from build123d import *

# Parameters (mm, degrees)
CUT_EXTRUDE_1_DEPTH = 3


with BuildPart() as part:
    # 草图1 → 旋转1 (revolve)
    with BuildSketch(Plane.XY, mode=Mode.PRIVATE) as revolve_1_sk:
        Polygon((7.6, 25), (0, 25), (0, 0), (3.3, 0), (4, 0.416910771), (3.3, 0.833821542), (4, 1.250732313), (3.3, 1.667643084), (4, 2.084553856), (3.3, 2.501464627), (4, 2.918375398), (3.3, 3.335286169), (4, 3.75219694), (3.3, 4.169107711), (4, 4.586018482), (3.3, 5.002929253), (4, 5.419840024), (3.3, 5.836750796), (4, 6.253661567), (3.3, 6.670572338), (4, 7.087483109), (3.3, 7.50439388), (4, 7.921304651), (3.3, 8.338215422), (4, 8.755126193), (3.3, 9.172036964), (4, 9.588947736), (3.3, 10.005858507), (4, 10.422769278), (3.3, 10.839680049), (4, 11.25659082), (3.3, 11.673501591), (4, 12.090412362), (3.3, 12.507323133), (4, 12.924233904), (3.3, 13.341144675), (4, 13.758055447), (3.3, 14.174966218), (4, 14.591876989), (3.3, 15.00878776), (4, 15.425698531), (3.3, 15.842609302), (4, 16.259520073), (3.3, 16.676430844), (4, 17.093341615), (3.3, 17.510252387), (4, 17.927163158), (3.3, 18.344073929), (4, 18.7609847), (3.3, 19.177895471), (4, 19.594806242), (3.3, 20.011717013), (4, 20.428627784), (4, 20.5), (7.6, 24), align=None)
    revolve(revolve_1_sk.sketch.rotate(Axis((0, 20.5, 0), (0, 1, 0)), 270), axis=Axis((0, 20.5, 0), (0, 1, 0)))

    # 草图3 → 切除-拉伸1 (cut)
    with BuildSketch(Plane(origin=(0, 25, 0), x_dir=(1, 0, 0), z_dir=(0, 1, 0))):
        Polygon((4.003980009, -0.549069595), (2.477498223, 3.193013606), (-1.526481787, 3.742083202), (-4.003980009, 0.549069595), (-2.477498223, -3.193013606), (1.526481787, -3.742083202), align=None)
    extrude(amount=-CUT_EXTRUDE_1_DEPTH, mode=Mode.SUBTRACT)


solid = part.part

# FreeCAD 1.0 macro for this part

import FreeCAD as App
import Part
import Sketcher
from FreeCAD import Vector
Q = App.Units.Quantity

doc = App.newDocument("Part")
params = doc.addObject("Spreadsheet::Sheet", "Params")
for row, (alias, value) in enumerate([
    ("sketch1_height", "25 mm"),
    ("sketch1_height2", "1 mm"),
    ("sketch1_width", "7.6 mm"),
    ("sketch1_width2", "3.3 mm"),
    ("revolution_angle", "360 deg"),
    ("pocket1_length", "3 mm"),
], start=1):
    params.set(f"A{row}", alias)
    params.set(f"B{row}", "=" + value)
    params.setAlias(f"B{row}", alias)

body = doc.addObject("PartDesign::Body", "Body")

sketch1 = doc.addObject("Sketcher::SketchObject", "Sketch")
body.addObject(sketch1)
sketch1.AttachmentSupport = (doc.XY_Plane, [""])
sketch1.MapMode = "FlatFace"
sketch1.addGeometry([
    Part.LineSegment(Vector(7.6, 25, 0), Vector(0, 25, 0)),
    Part.LineSegment(Vector(0, 25, 0), Vector(0, 0, 0)),
    Part.LineSegment(Vector(0, 0, 0), Vector(3.3, 0, 0)),
    Part.LineSegment(Vector(3.3, 0, 0), Vector(4, 0.42, 0)),
    Part.LineSegment(Vector(4, 0.42, 0), Vector(3.3, 0.83, 0)),
    Part.LineSegment(Vector(3.3, 0.83, 0), Vector(4, 1.25, 0)),
    Part.LineSegment(Vector(4, 1.25, 0), Vector(3.3, 1.67, 0)),
    Part.LineSegment(Vector(3.3, 1.67, 0), Vector(4, 2.08, 0)),
    Part.LineSegment(Vector(4, 2.08, 0), Vector(3.3, 2.5, 0)),
    Part.LineSegment(Vector(3.3, 2.5, 0), Vector(4, 2.92, 0)),
    Part.LineSegment(Vector(4, 2.92, 0), Vector(3.3, 3.34, 0)),
    Part.LineSegment(Vector(3.3, 3.34, 0), Vector(4, 3.75, 0)),
    Part.LineSegment(Vector(4, 3.75, 0), Vector(3.3, 4.17, 0)),
    Part.LineSegment(Vector(3.3, 4.17, 0), Vector(4, 4.59, 0)),
    Part.LineSegment(Vector(4, 4.59, 0), Vector(3.3, 5, 0)),
    Part.LineSegment(Vector(3.3, 5, 0), Vector(4, 5.42, 0)),
    Part.LineSegment(Vector(4, 5.42, 0), Vector(3.3, 5.84, 0)),
    Part.LineSegment(Vector(3.3, 5.84, 0), Vector(4, 6.25, 0)),
    Part.LineSegment(Vector(4, 6.25, 0), Vector(3.3, 6.67, 0)),
    Part.LineSegment(Vector(3.3, 6.67, 0), Vector(4, 7.09, 0)),
    Part.LineSegment(Vector(4, 7.09, 0), Vector(3.3, 7.5, 0)),
    Part.LineSegment(Vector(3.3, 7.5, 0), Vector(4, 7.92, 0)),
    Part.LineSegment(Vector(4, 7.92, 0), Vector(3.3, 8.34, 0)),
    Part.LineSegment(Vector(3.3, 8.34, 0), Vector(4, 8.76, 0)),
    Part.LineSegment(Vector(4, 8.76, 0), Vector(3.3, 9.17, 0)),
    Part.LineSegment(Vector(3.3, 9.17, 0), Vector(4, 9.59, 0)),
    Part.LineSegment(Vector(4, 9.59, 0), Vector(3.3, 10.01, 0)),
    Part.LineSegment(Vector(3.3, 10.01, 0), Vector(4, 10.42, 0)),
    Part.LineSegment(Vector(4, 10.42, 0), Vector(3.3, 10.84, 0)),
    Part.LineSegment(Vector(3.3, 10.84, 0), Vector(4, 11.26, 0)),
    Part.LineSegment(Vector(4, 11.26, 0), Vector(3.3, 11.67, 0)),
    Part.LineSegment(Vector(3.3, 11.67, 0), Vector(4, 12.09, 0)),
    Part.LineSegment(Vector(4, 12.09, 0), Vector(3.3, 12.51, 0)),
    Part.LineSegment(Vector(3.3, 12.51, 0), Vector(4, 12.92, 0)),
    Part.LineSegment(Vector(4, 12.92, 0), Vector(3.3, 13.34, 0)),
    Part.LineSegment(Vector(3.3, 13.34, 0), Vector(4, 13.76, 0)),
    Part.LineSegment(Vector(4, 13.76, 0), Vector(3.3, 14.17, 0)),
    Part.LineSegment(Vector(3.3, 14.17, 0), Vector(4, 14.59, 0)),
    Part.LineSegment(Vector(4, 14.59, 0), Vector(3.3, 15.01, 0)),
    Part.LineSegment(Vector(3.3, 15.01, 0), Vector(4, 15.43, 0)),
    Part.LineSegment(Vector(4, 15.43, 0), Vector(3.3, 15.84, 0)),
    Part.LineSegment(Vector(3.3, 15.84, 0), Vector(4, 16.26, 0)),
    Part.LineSegment(Vector(4, 16.26, 0), Vector(3.3, 16.68, 0)),
    Part.LineSegment(Vector(3.3, 16.68, 0), Vector(4, 17.09, 0)),
    Part.LineSegment(Vector(4, 17.09, 0), Vector(3.3, 17.51, 0)),
    Part.LineSegment(Vector(3.3, 17.51, 0), Vector(4, 17.93, 0)),
    Part.LineSegment(Vector(4, 17.93, 0), Vector(3.3, 18.34, 0)),
    Part.LineSegment(Vector(3.3, 18.34, 0), Vector(4, 18.76, 0)),
    Part.LineSegment(Vector(4, 18.76, 0), Vector(3.3, 19.18, 0)),
    Part.LineSegment(Vector(3.3, 19.18, 0), Vector(4, 19.59, 0)),
    Part.LineSegment(Vector(4, 19.59, 0), Vector(3.3, 20.01, 0)),
    Part.LineSegment(Vector(3.3, 20.01, 0), Vector(4, 20.43, 0)),
    Part.LineSegment(Vector(4, 20.43, 0), Vector(4, 20.5, 0)),
    Part.LineSegment(Vector(4, 20.5, 0), Vector(7.6, 24, 0)),
    Part.LineSegment(Vector(7.6, 24, 0), Vector(7.6, 25, 0)),
], False)
sketch1.addConstraint([
    Sketcher.Constraint("Coincident", 0, 2, 1, 1),
    Sketcher.Constraint("Coincident", 1, 2, 2, 1),
    Sketcher.Constraint("Coincident", 2, 2, 3, 1),
    Sketcher.Constraint("Coincident", 3, 2, 4, 1),
    Sketcher.Constraint("Coincident", 4, 2, 5, 1),
    Sketcher.Constraint("Coincident", 5, 2, 6, 1),
    Sketcher.Constraint("Coincident", 6, 2, 7, 1),
    Sketcher.Constraint("Coincident", 7, 2, 8, 1),
    Sketcher.Constraint("Coincident", 8, 2, 9, 1),
    Sketcher.Constraint("Coincident", 9, 2, 10, 1),
    Sketcher.Constraint("Coincident", 10, 2, 11, 1),
    Sketcher.Constraint("Coincident", 11, 2, 12, 1),
    Sketcher.Constraint("Coincident", 12, 2, 13, 1),
    Sketcher.Constraint("Coincident", 13, 2, 14, 1),
    Sketcher.Constraint("Coincident", 14, 2, 15, 1),
    Sketcher.Constraint("Coincident", 15, 2, 16, 1),
    Sketcher.Constraint("Coincident", 16, 2, 17, 1),
    Sketcher.Constraint("Coincident", 17, 2, 18, 1),
    Sketcher.Constraint("Coincident", 18, 2, 19, 1),
    Sketcher.Constraint("Coincident", 19, 2, 20, 1),
    Sketcher.Constraint("Coincident", 20, 2, 21, 1),
    Sketcher.Constraint("Coincident", 21, 2, 22, 1),
    Sketcher.Constraint("Coincident", 22, 2, 23, 1),
    Sketcher.Constraint("Coincident", 23, 2, 24, 1),
    Sketcher.Constraint("Coincident", 24, 2, 25, 1),
    Sketcher.Constraint("Coincident", 25, 2, 26, 1),
    Sketcher.Constraint("Coincident", 26, 2, 27, 1),
    Sketcher.Constraint("Coincident", 27, 2, 28, 1),
    Sketcher.Constraint("Coincident", 28, 2, 29, 1),
    Sketcher.Constraint("Coincident", 29, 2, 30, 1),
    Sketcher.Constraint("Coincident", 30, 2, 31, 1),
    Sketcher.Constraint("Coincident", 31, 2, 32, 1),
    Sketcher.Constraint("Coincident", 32, 2, 33, 1),
    Sketcher.Constraint("Coincident", 33, 2, 34, 1),
    Sketcher.Constraint("Coincident", 34, 2, 35, 1),
    Sketcher.Constraint("Coincident", 35, 2, 36, 1),
    Sketcher.Constraint("Coincident", 36, 2, 37, 1),
    Sketcher.Constraint("Coincident", 37, 2, 38, 1),
    Sketcher.Constraint("Coincident", 38, 2, 39, 1),
    Sketcher.Constraint("Coincident", 39, 2, 40, 1),
    Sketcher.Constraint("Coincident", 40, 2, 41, 1),
    Sketcher.Constraint("Coincident", 41, 2, 42, 1),
    Sketcher.Constraint("Coincident", 42, 2, 43, 1),
    Sketcher.Constraint("Coincident", 43, 2, 44, 1),
    Sketcher.Constraint("Coincident", 44, 2, 45, 1),
    Sketcher.Constraint("Coincident", 45, 2, 46, 1),
    Sketcher.Constraint("Coincident", 46, 2, 47, 1),
    Sketcher.Constraint("Coincident", 47, 2, 48, 1),
    Sketcher.Constraint("Coincident", 48, 2, 49, 1),
    Sketcher.Constraint("Coincident", 49, 2, 50, 1),
    Sketcher.Constraint("Coincident", 50, 2, 51, 1),
    Sketcher.Constraint("Coincident", 51, 2, 52, 1),
    Sketcher.Constraint("Coincident", 52, 2, 53, 1),
    Sketcher.Constraint("Coincident", 53, 2, 54, 1),
    Sketcher.Constraint("Coincident", 54, 2, 0, 1),
    Sketcher.Constraint("Horizontal", 0),
    Sketcher.Constraint("Vertical", 1),
    Sketcher.Constraint("Horizontal", 2),
    Sketcher.Constraint("Vertical", 52),
    Sketcher.Constraint("Vertical", 54),
    Sketcher.Constraint("Coincident", 1, 2, -1, 1),
    Sketcher.Constraint("Parallel", 3, 5),
    Sketcher.Constraint("Parallel", 4, 6),
    Sketcher.Constraint("Parallel", 5, 7),
    Sketcher.Constraint("Parallel", 6, 8),
    Sketcher.Constraint("Parallel", 7, 9),
    Sketcher.Constraint("Parallel", 8, 10),
    Sketcher.Constraint("Parallel", 9, 11),
    Sketcher.Constraint("Parallel", 10, 12),
    Sketcher.Constraint("Parallel", 11, 13),
    Sketcher.Constraint("Parallel", 12, 14),
    Sketcher.Constraint("Parallel", 13, 15),
    Sketcher.Constraint("Parallel", 14, 16),
    Sketcher.Constraint("Parallel", 15, 17),
    Sketcher.Constraint("Parallel", 16, 18),
    Sketcher.Constraint("Parallel", 17, 19),
    Sketcher.Constraint("Parallel", 18, 20),
    Sketcher.Constraint("Parallel", 19, 21),
    Sketcher.Constraint("Parallel", 20, 22),
    Sketcher.Constraint("Parallel", 21, 23),
    Sketcher.Constraint("Parallel", 22, 24),
    Sketcher.Constraint("Parallel", 23, 25),
    Sketcher.Constraint("Parallel", 24, 26),
    Sketcher.Constraint("Parallel", 25, 27),
    Sketcher.Constraint("Parallel", 26, 28),
    Sketcher.Constraint("Parallel", 27, 29),
    Sketcher.Constraint("Parallel", 28, 30),
    Sketcher.Constraint("Parallel", 29, 31),
    Sketcher.Constraint("Parallel", 30, 32),
    Sketcher.Constraint("Parallel", 31, 33),
    Sketcher.Constraint("Parallel", 32, 34),
    Sketcher.Constraint("Parallel", 33, 35),
    Sketcher.Constraint("Parallel", 34, 36),
    Sketcher.Constraint("Parallel", 35, 37),
    Sketcher.Constraint("Parallel", 36, 38),
    Sketcher.Constraint("Parallel", 37, 39),
    Sketcher.Constraint("Parallel", 38, 40),
    Sketcher.Constraint("Parallel", 39, 41),
    Sketcher.Constraint("Parallel", 40, 42),
    Sketcher.Constraint("Parallel", 41, 43),
    Sketcher.Constraint("Parallel", 42, 44),
    Sketcher.Constraint("Parallel", 43, 45),
    Sketcher.Constraint("Parallel", 44, 46),
    Sketcher.Constraint("Parallel", 45, 47),
    Sketcher.Constraint("Parallel", 46, 48),
    Sketcher.Constraint("Parallel", 47, 49),
    Sketcher.Constraint("Parallel", 48, 50),
    Sketcher.Constraint("Parallel", 49, 51),
    Sketcher.Constraint("Vertical", 2, 2, 4, 2),
    Sketcher.Constraint("Vertical", 3, 2, 5, 2),
    Sketcher.Constraint("Vertical", 4, 2, 6, 2),
    Sketcher.Constraint("Vertical", 5, 2, 7, 2),
    Sketcher.Constraint("Vertical", 6, 2, 8, 2),
    Sketcher.Constraint("Vertical", 7, 2, 9, 2),
    Sketcher.Constraint("Vertical", 8, 2, 10, 2),
    Sketcher.Constraint("Vertical", 9, 2, 11, 2),
    Sketcher.Constraint("Vertical", 10, 2, 12, 2),
    Sketcher.Constraint("Vertical", 11, 2, 13, 2),
    Sketcher.Constraint("Vertical", 12, 2, 14, 2),
    Sketcher.Constraint("Vertical", 13, 2, 15, 2),
    Sketcher.Constraint("Vertical", 14, 2, 16, 2),
    Sketcher.Constraint("Vertical", 15, 2, 17, 2),
    Sketcher.Constraint("Vertical", 16, 2, 18, 2),
    Sketcher.Constraint("Vertical", 17, 2, 19, 2),
    Sketcher.Constraint("Vertical", 18, 2, 20, 2),
    Sketcher.Constraint("Vertical", 19, 2, 21, 2),
    Sketcher.Constraint("Vertical", 20, 2, 22, 2),
    Sketcher.Constraint("Vertical", 21, 2, 23, 2),
    Sketcher.Constraint("Vertical", 22, 2, 24, 2),
    Sketcher.Constraint("Vertical", 23, 2, 25, 2),
    Sketcher.Constraint("Vertical", 24, 2, 26, 2),
    Sketcher.Constraint("Vertical", 25, 2, 27, 2),
    Sketcher.Constraint("Vertical", 26, 2, 28, 2),
    Sketcher.Constraint("Vertical", 27, 2, 29, 2),
    Sketcher.Constraint("Vertical", 28, 2, 30, 2),
    Sketcher.Constraint("Vertical", 29, 2, 31, 2),
    Sketcher.Constraint("Vertical", 30, 2, 32, 2),
    Sketcher.Constraint("Vertical", 31, 2, 33, 2),
    Sketcher.Constraint("Vertical", 32, 2, 34, 2),
    Sketcher.Constraint("Vertical", 33, 2, 35, 2),
    Sketcher.Constraint("Vertical", 34, 2, 36, 2),
    Sketcher.Constraint("Vertical", 35, 2, 37, 2),
    Sketcher.Constraint("Vertical", 36, 2, 38, 2),
    Sketcher.Constraint("Vertical", 37, 2, 39, 2),
    Sketcher.Constraint("Vertical", 38, 2, 40, 2),
    Sketcher.Constraint("Vertical", 39, 2, 41, 2),
    Sketcher.Constraint("Vertical", 40, 2, 42, 2),
    Sketcher.Constraint("Vertical", 41, 2, 43, 2),
    Sketcher.Constraint("Vertical", 42, 2, 44, 2),
    Sketcher.Constraint("Vertical", 43, 2, 45, 2),
    Sketcher.Constraint("Vertical", 44, 2, 46, 2),
    Sketcher.Constraint("Vertical", 45, 2, 47, 2),
    Sketcher.Constraint("Vertical", 46, 2, 48, 2),
    Sketcher.Constraint("Vertical", 47, 2, 49, 2),
    Sketcher.Constraint("Vertical", 48, 2, 50, 2),
    Sketcher.Constraint("Vertical", 49, 2, 51, 2),
    Sketcher.Constraint("Equal", 3, 4),
    Sketcher.Constraint("DistanceY", 1, 2, 1, 1, Q("25 mm")),
    Sketcher.Constraint("DistanceY", 54, 1, 54, 2, Q("1 mm")),
    Sketcher.Constraint("DistanceX", 0, 2, 0, 1, Q("7.6 mm")),
    Sketcher.Constraint("DistanceX", 2, 1, 2, 2, Q("3.3 mm")),
    Sketcher.Constraint("DistanceX", -1, 1, 3, 2, Q("4 mm")),
    Sketcher.Constraint("DistanceY", -1, 1, 52, 2, Q("20.5 mm")),
    Sketcher.Constraint("DistanceY", -1, 1, 30, 2, Q("11.673502 mm")),
])
sketch1.setExpression("Constraints[157]", "Params.sketch1_height")
sketch1.setExpression("Constraints[158]", "Params.sketch1_height2")
sketch1.setExpression("Constraints[159]", "Params.sketch1_width")
sketch1.setExpression("Constraints[160]", "Params.sketch1_width2")
revolution = doc.addObject("PartDesign::Revolution", "Revolution")
body.addObject(revolution)
revolution.Profile = sketch1
revolution.ReferenceAxis = (sketch1, ["V_Axis"])
revolution.setExpression("Angle", "Params.revolution_angle")

sketch2 = doc.addObject("Sketcher::SketchObject", "Sketch001")
body.addObject(sketch2)
sketch2.AttachmentSupport = (doc.XZ_Plane, [""])
sketch2.MapMode = "FlatFace"
sketch2.AttachmentOffset = App.Placement(Vector(0, 0, -25), App.Rotation())
sketch2.addGeometry([
    Part.LineSegment(Vector(4, 0.5, 0), Vector(2.5, -3.2, 0)),
    Part.LineSegment(Vector(2.5, -3.2, 0), Vector(-1.5, -3.7, 0)),
    Part.LineSegment(Vector(-1.5, -3.7, 0), Vector(-4, -0.5, 0)),
    Part.LineSegment(Vector(-4, -0.5, 0), Vector(-2.5, 3.2, 0)),
    Part.LineSegment(Vector(-2.5, 3.2, 0), Vector(1.5, 3.7, 0)),
    Part.LineSegment(Vector(1.5, 3.7, 0), Vector(4, 0.5, 0)),
], False)
sketch2.addConstraint([
    Sketcher.Constraint("Coincident", 0, 2, 1, 1),
    Sketcher.Constraint("Coincident", 1, 2, 2, 1),
    Sketcher.Constraint("Coincident", 2, 2, 3, 1),
    Sketcher.Constraint("Coincident", 3, 2, 4, 1),
    Sketcher.Constraint("Coincident", 4, 2, 5, 1),
    Sketcher.Constraint("Coincident", 5, 2, 0, 1),
    Sketcher.Constraint("Symmetric", 0, 2, 3, 2, -1, 1),
    Sketcher.Constraint("Symmetric", 1, 2, 4, 2, -1, 1),
    Sketcher.Constraint("Symmetric", 2, 2, 5, 2, -1, 1),
    Sketcher.Constraint("Equal", 0, 1),
    Sketcher.Constraint("Equal", 1, 2),
    Sketcher.Constraint("DistanceX", -1, 1, 0, 2, Q("2.477498 mm")),
    Sketcher.Constraint("DistanceX", 2, 2, 1, 2, Q("2.477498 mm")),
    Sketcher.Constraint("Distance", 0, Q("4.041452 mm")),
    Sketcher.Constraint("DistanceX", 1, 2, -1, 1, Q("1.526482 mm")),
])
pocket1 = doc.addObject("PartDesign::Pocket", "Pocket")
body.addObject(pocket1)
pocket1.Profile = sketch2
pocket1.setExpression("Length", "Params.pocket1_length")
pocket1.Reversed = True

doc.recompute()
